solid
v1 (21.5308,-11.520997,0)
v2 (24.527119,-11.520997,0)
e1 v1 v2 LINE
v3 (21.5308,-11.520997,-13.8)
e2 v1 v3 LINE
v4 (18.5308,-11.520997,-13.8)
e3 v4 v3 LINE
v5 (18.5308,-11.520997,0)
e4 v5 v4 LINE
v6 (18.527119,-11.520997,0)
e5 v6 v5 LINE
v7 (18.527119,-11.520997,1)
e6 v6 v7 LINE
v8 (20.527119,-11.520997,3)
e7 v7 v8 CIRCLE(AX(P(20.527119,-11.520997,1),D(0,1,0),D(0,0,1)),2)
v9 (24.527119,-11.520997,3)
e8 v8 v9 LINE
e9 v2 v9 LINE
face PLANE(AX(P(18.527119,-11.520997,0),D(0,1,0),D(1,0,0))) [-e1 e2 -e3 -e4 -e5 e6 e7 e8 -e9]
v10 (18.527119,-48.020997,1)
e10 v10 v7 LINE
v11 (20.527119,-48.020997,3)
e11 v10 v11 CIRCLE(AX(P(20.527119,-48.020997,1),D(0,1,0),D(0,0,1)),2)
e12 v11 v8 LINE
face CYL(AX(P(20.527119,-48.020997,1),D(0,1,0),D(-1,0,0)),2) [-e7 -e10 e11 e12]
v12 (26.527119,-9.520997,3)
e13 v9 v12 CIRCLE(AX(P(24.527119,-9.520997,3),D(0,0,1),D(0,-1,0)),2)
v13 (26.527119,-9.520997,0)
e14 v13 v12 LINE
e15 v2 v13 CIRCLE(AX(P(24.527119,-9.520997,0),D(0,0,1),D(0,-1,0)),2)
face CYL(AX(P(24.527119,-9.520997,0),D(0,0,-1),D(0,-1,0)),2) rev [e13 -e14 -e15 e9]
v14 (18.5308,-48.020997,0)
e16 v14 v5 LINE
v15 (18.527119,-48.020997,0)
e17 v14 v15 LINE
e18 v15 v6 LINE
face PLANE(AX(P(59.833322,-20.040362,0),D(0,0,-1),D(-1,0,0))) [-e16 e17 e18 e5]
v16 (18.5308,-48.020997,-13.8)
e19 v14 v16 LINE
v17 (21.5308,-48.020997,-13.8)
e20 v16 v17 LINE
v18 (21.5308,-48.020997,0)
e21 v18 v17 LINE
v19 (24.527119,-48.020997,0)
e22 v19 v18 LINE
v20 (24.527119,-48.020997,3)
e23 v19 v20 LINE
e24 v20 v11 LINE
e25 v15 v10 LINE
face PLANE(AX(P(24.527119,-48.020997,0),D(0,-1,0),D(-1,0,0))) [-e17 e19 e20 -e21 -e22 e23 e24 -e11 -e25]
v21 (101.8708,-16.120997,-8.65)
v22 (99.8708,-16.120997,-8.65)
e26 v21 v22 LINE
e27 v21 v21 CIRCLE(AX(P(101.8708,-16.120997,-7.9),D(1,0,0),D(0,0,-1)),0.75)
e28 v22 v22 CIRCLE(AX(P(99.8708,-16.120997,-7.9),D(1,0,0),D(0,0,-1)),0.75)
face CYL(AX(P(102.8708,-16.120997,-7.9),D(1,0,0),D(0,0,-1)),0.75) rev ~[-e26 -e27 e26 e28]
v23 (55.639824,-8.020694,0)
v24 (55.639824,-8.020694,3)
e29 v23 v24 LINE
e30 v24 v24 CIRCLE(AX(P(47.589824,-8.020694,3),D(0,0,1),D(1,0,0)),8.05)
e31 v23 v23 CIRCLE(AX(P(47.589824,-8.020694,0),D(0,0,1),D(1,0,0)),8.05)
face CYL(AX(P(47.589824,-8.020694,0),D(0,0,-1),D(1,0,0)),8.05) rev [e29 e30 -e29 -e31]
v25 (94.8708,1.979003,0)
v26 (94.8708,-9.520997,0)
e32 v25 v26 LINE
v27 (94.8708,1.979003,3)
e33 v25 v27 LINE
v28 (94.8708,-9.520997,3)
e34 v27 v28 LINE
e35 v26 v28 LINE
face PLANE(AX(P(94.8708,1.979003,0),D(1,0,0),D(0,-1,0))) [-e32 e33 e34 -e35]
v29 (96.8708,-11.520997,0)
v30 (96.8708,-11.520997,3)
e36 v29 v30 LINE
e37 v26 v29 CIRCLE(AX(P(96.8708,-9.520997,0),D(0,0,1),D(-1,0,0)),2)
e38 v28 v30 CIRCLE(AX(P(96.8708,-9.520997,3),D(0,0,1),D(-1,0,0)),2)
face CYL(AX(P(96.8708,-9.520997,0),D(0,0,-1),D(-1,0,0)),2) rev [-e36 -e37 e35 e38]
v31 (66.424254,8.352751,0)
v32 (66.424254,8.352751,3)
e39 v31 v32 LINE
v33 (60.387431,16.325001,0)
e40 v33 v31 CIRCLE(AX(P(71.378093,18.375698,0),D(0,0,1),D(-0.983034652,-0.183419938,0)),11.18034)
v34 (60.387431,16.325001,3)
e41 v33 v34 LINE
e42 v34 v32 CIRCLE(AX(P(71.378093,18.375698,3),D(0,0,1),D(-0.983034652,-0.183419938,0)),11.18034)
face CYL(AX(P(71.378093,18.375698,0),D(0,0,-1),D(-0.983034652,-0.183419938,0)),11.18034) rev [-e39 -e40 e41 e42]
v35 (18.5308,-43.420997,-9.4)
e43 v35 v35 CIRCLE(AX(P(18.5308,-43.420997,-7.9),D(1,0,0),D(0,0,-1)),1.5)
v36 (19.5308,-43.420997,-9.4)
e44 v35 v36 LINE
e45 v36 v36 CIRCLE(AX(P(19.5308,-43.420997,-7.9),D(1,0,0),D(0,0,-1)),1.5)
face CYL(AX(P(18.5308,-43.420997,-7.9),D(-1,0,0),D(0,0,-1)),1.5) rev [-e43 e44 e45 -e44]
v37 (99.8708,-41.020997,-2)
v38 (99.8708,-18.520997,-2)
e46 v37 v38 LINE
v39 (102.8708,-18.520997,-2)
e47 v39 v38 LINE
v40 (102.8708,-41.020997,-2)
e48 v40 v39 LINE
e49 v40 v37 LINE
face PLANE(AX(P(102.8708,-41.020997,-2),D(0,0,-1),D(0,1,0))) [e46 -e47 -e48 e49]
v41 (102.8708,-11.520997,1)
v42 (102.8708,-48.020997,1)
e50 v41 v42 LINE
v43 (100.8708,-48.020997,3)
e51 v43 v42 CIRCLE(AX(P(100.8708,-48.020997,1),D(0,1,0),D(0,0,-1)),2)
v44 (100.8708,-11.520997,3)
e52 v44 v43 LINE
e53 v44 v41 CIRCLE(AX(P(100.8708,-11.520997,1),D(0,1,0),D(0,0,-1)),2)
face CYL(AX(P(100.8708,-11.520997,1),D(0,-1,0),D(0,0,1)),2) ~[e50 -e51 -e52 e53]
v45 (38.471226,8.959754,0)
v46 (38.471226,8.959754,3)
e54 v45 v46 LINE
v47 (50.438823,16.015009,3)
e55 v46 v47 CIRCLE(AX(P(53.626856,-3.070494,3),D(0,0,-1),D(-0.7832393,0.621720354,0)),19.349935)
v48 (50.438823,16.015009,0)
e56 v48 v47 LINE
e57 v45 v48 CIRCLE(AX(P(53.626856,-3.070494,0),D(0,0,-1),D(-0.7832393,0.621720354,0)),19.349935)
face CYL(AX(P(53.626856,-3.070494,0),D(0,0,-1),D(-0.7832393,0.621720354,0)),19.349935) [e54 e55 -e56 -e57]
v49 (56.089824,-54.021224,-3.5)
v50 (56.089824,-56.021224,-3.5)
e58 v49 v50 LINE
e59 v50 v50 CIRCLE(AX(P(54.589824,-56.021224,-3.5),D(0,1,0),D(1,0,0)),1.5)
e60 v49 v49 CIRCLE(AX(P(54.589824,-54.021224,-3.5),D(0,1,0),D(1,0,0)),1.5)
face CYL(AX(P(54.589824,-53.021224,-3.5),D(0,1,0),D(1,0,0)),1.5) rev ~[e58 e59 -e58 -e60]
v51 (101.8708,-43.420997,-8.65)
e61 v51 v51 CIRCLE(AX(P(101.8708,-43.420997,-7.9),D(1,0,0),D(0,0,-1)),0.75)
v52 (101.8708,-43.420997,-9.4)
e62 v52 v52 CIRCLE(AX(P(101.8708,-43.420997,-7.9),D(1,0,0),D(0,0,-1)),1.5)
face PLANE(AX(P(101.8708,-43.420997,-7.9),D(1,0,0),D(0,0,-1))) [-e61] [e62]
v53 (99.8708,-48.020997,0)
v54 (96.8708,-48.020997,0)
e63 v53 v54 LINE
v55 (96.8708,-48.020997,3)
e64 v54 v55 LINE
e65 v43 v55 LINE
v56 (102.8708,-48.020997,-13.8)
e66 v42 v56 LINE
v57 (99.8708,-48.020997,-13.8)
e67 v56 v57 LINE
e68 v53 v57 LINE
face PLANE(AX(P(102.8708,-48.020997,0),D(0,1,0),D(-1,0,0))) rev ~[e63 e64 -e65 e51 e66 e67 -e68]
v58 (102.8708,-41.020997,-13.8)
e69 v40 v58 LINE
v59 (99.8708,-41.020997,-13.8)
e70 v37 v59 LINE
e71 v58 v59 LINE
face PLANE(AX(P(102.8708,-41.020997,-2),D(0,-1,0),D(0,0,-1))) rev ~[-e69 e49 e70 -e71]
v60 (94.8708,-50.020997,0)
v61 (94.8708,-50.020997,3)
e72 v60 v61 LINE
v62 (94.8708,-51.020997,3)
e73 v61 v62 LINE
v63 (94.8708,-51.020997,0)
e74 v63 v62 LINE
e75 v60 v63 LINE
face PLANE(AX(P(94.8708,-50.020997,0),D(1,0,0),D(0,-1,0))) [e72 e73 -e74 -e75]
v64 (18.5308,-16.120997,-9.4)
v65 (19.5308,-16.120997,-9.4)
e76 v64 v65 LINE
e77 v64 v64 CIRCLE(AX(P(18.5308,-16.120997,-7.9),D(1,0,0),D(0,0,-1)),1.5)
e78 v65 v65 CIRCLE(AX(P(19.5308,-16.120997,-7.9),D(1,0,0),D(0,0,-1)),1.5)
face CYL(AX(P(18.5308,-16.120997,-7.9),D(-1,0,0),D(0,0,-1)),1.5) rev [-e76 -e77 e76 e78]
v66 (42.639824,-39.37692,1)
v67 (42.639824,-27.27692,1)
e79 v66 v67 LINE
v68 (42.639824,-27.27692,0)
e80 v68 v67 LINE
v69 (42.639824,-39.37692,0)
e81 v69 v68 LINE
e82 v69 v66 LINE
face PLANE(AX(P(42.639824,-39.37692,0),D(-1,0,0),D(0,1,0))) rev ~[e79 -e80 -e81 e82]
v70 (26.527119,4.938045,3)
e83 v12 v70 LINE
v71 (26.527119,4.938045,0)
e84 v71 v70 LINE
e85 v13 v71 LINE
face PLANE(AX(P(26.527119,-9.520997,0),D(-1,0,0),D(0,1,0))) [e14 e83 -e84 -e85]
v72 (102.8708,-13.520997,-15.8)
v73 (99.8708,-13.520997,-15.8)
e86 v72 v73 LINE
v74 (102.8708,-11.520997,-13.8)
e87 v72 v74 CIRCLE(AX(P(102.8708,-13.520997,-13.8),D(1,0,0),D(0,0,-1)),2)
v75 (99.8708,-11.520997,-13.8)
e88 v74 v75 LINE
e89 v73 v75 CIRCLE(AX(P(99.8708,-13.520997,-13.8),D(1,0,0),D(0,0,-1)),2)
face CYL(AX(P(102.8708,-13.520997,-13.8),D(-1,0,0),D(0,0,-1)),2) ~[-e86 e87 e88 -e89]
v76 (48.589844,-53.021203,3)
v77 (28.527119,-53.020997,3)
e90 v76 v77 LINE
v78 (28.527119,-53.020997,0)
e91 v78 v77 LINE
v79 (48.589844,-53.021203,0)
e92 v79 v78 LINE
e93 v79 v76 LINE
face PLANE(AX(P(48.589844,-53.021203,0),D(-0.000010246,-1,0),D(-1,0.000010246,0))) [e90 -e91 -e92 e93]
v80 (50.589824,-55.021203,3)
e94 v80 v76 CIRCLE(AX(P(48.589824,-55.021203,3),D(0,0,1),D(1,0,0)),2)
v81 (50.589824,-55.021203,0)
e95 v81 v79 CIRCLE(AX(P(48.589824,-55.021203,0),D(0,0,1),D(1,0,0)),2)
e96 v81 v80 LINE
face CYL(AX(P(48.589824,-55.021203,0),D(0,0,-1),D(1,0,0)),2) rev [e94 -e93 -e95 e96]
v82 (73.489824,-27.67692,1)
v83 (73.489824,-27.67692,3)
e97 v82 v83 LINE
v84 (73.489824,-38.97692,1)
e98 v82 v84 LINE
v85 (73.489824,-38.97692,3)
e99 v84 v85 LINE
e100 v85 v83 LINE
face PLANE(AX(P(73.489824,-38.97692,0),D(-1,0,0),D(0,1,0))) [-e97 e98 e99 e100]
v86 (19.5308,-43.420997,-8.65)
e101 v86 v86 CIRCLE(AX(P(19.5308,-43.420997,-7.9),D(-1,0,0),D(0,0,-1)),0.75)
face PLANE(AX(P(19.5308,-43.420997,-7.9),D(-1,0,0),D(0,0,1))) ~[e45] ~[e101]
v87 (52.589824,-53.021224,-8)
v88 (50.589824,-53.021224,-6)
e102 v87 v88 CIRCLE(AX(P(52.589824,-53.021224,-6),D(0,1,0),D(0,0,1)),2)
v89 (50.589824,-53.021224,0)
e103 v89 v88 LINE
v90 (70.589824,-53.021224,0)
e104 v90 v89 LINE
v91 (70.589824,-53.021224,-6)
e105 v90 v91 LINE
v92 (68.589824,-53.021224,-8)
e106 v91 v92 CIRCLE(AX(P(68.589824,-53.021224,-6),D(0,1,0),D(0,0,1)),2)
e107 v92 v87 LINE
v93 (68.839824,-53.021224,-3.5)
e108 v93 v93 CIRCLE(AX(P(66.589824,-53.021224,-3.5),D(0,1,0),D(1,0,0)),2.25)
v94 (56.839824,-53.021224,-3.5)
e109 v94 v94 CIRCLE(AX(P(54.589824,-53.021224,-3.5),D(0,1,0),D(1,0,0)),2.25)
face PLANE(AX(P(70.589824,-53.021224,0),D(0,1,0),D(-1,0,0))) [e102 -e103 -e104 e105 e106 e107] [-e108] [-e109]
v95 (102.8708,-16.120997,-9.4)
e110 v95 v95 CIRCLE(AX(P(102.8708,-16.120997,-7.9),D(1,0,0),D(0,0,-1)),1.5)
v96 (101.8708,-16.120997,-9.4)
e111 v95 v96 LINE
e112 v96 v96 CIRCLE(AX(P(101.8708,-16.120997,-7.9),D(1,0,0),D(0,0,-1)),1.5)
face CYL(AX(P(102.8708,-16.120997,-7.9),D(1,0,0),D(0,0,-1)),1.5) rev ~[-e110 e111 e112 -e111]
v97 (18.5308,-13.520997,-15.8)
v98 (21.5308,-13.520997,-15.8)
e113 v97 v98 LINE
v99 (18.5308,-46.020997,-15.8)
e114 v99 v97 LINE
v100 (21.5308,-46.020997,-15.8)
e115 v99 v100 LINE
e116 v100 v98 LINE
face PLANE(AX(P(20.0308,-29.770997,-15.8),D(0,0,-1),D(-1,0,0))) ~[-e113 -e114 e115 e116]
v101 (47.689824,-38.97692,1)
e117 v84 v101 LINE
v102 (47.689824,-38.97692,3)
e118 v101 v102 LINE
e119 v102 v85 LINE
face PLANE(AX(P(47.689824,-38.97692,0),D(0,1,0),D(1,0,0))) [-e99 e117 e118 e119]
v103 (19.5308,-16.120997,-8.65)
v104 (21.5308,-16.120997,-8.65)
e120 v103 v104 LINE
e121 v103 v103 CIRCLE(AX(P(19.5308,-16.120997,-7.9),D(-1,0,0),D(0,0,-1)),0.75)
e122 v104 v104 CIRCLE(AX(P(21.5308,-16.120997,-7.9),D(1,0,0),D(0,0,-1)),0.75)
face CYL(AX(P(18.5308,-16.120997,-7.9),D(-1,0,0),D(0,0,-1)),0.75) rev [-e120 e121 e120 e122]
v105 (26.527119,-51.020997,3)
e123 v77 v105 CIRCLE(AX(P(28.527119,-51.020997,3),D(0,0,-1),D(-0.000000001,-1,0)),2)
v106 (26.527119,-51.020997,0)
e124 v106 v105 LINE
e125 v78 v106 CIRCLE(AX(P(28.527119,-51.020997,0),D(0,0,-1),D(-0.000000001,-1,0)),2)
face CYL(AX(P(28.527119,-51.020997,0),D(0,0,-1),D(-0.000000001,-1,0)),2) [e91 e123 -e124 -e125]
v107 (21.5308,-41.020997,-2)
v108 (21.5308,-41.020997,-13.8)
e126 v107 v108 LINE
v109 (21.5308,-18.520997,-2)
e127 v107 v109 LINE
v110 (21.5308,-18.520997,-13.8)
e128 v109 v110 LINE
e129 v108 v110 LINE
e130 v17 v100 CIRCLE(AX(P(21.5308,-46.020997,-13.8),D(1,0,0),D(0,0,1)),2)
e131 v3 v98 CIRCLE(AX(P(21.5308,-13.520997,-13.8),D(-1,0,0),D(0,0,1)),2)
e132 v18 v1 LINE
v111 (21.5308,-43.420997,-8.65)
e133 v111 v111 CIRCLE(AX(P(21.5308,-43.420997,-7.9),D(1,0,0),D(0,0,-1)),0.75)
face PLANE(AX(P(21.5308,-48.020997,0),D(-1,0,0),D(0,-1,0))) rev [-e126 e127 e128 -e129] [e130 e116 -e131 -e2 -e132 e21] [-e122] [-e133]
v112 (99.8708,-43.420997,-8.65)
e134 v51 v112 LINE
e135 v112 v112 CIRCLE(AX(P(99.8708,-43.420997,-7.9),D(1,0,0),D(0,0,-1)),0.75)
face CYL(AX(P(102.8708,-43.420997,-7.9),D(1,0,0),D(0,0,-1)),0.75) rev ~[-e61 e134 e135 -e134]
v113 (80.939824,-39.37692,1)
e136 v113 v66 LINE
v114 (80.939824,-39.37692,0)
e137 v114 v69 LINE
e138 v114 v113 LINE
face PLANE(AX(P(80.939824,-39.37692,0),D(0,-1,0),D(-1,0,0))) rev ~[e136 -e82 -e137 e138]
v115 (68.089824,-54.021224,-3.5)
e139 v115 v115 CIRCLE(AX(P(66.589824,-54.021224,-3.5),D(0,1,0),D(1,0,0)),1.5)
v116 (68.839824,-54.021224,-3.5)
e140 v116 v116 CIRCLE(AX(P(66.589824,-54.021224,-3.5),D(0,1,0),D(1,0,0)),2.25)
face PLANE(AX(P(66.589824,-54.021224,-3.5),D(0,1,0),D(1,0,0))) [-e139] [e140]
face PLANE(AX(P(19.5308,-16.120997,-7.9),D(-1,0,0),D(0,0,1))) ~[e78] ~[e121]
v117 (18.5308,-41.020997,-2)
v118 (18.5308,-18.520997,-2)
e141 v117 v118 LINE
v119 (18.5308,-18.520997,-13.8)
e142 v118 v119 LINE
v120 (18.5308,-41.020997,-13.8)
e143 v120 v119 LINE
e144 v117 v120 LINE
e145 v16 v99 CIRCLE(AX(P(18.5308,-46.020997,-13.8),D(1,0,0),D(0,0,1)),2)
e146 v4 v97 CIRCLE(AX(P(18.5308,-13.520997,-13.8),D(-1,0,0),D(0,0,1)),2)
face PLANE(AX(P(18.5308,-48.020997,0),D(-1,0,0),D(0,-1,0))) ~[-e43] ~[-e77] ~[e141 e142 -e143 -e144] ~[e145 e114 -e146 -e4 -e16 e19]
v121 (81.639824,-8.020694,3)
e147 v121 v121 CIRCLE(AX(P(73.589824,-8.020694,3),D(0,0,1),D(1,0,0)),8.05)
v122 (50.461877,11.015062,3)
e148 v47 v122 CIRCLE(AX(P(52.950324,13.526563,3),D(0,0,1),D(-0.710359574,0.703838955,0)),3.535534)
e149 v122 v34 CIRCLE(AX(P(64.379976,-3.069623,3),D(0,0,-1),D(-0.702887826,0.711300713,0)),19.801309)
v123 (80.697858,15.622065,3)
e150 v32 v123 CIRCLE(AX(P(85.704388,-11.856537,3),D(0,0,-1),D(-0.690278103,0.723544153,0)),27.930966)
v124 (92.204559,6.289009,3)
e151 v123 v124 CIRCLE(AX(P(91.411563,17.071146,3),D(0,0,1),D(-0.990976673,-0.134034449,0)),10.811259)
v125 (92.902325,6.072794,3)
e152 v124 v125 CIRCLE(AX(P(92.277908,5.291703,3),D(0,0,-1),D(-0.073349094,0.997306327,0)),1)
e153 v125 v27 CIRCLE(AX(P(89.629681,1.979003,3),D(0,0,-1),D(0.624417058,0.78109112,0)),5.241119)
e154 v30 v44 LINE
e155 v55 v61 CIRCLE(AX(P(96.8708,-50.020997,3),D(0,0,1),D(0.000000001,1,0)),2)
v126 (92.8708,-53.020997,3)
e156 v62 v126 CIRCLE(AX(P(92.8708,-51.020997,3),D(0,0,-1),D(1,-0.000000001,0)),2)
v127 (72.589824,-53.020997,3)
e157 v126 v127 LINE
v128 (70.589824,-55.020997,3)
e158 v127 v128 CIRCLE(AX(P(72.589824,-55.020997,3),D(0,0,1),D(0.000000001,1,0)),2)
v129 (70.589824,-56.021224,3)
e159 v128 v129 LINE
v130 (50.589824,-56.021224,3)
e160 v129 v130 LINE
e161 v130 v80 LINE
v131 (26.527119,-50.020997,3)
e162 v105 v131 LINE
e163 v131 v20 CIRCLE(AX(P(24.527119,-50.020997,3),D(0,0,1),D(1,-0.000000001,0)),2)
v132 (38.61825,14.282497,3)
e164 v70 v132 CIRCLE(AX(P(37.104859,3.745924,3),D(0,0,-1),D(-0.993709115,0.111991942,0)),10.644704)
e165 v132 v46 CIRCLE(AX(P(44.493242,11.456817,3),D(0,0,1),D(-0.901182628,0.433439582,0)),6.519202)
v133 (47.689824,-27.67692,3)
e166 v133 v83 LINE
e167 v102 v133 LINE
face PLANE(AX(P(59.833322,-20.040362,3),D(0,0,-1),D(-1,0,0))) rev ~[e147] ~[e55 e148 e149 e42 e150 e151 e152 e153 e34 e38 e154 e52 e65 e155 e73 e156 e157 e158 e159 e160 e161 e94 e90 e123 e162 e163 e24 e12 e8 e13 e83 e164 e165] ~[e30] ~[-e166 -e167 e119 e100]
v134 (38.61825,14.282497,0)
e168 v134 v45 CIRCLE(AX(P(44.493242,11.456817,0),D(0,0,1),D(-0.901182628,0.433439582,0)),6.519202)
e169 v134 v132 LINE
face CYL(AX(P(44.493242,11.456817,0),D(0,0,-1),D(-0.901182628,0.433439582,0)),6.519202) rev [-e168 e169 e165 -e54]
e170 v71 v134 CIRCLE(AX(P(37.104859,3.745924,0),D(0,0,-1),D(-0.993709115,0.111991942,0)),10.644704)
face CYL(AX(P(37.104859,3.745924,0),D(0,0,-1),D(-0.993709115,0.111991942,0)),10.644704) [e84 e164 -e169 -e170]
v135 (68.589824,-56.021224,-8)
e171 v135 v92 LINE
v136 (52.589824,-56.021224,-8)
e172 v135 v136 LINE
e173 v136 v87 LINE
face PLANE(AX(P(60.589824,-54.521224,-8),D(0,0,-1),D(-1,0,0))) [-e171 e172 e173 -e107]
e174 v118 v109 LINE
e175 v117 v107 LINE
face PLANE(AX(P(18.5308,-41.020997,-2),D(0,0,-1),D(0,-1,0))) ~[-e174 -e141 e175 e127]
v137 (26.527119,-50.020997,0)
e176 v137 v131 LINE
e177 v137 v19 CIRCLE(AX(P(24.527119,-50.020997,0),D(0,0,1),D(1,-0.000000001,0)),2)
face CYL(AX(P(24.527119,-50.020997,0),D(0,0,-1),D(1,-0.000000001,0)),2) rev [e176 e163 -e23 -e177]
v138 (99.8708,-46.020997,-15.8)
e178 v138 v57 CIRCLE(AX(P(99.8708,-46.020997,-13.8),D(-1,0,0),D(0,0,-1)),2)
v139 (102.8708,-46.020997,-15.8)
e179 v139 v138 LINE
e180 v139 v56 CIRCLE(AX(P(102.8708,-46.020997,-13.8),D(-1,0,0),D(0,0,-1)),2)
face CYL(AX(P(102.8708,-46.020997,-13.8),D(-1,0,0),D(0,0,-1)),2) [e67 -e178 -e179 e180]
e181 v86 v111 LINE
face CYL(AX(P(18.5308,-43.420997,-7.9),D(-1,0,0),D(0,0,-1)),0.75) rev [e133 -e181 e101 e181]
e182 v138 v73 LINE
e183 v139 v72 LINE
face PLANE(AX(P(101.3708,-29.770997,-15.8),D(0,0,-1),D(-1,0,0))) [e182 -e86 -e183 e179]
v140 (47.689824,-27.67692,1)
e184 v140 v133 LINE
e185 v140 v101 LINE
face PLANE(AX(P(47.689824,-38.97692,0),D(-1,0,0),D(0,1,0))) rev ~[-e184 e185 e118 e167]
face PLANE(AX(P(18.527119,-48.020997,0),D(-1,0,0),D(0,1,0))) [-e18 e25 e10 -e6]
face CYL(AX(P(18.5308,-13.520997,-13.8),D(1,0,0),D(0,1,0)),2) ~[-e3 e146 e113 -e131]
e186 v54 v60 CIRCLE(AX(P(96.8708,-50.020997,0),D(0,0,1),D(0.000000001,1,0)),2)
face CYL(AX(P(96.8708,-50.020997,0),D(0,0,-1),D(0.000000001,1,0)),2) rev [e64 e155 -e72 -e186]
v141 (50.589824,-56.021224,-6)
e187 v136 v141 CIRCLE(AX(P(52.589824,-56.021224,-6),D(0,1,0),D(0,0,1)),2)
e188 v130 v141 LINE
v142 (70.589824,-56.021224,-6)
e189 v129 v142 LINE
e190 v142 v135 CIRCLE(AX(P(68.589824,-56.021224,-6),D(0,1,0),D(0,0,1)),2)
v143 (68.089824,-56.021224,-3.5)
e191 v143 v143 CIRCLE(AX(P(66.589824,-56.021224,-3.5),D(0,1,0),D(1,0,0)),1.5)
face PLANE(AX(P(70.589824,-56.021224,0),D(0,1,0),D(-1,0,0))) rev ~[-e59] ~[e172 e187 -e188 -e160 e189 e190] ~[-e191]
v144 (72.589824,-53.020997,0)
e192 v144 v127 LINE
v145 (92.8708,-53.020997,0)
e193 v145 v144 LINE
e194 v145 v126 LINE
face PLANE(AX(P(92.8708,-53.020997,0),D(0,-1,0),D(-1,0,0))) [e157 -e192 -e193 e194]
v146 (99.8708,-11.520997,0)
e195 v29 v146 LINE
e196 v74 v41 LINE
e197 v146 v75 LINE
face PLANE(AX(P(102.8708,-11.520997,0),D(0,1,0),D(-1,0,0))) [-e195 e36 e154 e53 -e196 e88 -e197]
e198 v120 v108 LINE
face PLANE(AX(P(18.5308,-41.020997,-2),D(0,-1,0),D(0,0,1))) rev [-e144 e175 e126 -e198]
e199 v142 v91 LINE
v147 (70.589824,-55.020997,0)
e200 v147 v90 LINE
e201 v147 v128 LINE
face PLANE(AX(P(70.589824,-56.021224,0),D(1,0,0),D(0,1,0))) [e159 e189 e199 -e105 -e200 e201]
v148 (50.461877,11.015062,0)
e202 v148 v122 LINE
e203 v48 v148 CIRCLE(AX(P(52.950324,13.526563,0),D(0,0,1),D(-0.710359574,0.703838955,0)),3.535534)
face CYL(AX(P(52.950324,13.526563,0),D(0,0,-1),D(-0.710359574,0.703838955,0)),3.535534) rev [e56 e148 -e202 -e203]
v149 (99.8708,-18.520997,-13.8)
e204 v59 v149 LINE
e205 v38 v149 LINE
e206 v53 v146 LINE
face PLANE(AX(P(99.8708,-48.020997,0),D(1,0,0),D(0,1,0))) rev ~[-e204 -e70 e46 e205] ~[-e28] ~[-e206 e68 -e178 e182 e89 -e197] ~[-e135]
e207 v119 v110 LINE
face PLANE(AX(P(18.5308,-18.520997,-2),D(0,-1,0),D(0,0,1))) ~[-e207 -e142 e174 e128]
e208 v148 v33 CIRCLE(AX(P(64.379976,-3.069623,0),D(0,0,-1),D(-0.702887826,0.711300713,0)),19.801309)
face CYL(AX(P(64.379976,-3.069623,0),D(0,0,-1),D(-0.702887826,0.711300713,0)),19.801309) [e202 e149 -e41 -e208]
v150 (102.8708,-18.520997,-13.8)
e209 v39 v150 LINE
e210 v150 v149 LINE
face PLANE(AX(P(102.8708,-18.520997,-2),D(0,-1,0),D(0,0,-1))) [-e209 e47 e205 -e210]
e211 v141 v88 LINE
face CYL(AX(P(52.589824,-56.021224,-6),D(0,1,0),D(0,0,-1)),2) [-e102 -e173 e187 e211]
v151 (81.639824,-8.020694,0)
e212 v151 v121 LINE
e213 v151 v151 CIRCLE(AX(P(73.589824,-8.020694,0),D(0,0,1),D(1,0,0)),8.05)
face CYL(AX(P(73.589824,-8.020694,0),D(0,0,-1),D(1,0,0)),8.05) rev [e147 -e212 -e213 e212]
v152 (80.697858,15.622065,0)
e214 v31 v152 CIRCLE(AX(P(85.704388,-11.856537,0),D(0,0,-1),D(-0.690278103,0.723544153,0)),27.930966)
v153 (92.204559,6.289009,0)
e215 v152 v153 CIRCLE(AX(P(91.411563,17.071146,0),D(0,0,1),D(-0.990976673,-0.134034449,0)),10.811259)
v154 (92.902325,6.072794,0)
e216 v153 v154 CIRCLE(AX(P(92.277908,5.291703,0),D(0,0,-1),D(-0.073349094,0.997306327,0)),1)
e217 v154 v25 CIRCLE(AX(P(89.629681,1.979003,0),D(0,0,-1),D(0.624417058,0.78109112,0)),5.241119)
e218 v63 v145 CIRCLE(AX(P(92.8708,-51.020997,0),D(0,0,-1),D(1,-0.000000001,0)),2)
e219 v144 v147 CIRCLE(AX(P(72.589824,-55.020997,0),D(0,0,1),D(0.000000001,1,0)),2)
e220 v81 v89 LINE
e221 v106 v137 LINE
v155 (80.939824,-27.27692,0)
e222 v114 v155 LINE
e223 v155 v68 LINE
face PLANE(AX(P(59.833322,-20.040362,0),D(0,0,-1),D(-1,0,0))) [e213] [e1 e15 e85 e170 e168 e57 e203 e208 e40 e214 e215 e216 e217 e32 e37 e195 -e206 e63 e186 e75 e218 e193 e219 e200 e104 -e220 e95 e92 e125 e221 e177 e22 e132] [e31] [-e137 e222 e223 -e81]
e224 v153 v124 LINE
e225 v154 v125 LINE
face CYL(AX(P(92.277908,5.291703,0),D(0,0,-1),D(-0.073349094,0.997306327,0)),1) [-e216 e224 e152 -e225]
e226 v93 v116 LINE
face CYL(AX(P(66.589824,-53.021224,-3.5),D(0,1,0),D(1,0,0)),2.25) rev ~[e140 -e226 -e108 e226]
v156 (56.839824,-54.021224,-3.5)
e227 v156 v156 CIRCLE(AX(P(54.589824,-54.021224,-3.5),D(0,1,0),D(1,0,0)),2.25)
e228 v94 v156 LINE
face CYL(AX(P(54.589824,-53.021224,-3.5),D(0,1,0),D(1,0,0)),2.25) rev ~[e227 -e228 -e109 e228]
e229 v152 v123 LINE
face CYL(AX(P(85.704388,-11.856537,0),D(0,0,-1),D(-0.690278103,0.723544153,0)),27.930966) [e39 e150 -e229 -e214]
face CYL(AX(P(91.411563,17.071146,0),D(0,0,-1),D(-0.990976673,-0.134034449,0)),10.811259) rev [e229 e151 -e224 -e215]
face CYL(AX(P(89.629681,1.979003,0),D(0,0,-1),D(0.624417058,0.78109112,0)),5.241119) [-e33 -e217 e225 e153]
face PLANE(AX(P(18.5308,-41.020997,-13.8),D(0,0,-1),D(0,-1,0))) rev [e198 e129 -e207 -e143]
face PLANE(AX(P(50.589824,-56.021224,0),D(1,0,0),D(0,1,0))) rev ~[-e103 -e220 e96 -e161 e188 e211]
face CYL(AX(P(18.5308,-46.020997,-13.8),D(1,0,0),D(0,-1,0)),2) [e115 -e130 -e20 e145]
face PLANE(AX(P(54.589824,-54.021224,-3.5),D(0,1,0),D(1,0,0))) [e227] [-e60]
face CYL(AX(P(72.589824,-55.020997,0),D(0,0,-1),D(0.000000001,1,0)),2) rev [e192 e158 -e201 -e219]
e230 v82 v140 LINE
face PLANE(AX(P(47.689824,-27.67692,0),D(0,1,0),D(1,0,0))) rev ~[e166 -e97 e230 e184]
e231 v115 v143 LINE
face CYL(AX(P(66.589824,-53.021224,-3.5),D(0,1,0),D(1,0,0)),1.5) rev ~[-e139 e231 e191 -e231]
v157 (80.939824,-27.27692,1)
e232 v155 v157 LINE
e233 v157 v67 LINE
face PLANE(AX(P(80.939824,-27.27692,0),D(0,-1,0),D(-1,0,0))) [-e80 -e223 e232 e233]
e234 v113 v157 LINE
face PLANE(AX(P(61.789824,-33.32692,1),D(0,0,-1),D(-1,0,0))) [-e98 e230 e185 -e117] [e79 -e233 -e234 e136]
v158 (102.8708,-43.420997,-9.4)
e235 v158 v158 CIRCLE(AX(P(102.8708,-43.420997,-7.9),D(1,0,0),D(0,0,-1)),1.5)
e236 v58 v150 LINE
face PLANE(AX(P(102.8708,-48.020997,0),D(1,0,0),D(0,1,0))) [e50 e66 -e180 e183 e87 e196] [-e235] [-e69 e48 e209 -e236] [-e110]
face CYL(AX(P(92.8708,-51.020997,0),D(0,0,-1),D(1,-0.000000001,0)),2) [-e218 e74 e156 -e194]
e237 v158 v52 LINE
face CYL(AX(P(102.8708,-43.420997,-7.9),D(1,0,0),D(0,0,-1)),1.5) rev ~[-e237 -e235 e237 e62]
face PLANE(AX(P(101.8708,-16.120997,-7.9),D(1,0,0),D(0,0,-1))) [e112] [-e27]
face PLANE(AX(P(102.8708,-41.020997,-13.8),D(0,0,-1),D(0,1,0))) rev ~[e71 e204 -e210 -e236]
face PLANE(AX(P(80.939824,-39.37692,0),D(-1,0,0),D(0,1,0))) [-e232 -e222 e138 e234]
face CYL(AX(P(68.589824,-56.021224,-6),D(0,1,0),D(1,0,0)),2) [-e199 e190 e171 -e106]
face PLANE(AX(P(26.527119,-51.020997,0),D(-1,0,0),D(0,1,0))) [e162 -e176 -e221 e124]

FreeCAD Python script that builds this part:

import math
import FreeCAD as App
import Part
import Sketcher

V = App.Vector


def edges_at(feature, points):
    """Names of the edges that pass closest to the given points."""
    edges = feature.Shape.Edges
    near = lambda p: min(range(len(edges)), key=lambda i: edges[i].distToShape(Part.Vertex(*p))[0])
    return sorted({f"Edge{near(p) + 1}" for p in points})


def add_polygon(sketch, points):
    """Adds a closed chain of lines whose ends are joined by coincident constraints."""
    first, n = sketch.GeometryCount, len(points)
    for a, b in zip(points, points[1:] + points[:1]):
        sketch.addGeometry(Part.LineSegment(App.Vector(*a, 0), App.Vector(*b, 0)), False)
    for i in range(n):
        sketch.addConstraint(Sketcher.Constraint("Coincident", first + i, 2, first + (i + 1) % n, 1))

doc = App.newDocument("Part")
body = doc.addObject("PartDesign::Body", "Body")

sketch1 = body.newObject("Sketcher::SketchObject", "Sketch")
sketch1.AttachmentSupport = (doc.getObject("XY_Plane"), [""])
sketch1.MapMode = "FlatFace"
sketch1.addGeometry(Part.LineSegment(V(102.8708, -48.020997, 0), V(102.8708, -11.520997, 0)), False)
sketch1.addGeometry(Part.LineSegment(V(102.8708, -11.520997, 0), V(96.8708, -11.520997, 0)), False)
sketch1.addGeometry(Part.ArcOfCircle(Part.Circle(V(96.8708, -9.520997, 0), V(0, 0, 1), 2), math.radians(180), math.radians(270)), False)
sketch1.addGeometry(Part.LineSegment(V(94.8708, -9.520997, 0), V(94.8708, 1.979003, 0)), False)
sketch1.addGeometry(Part.ArcOfCircle(Part.Circle(V(89.629681, 1.979003, 0), V(0, 0, 1), 5.241119), math.radians(0), math.radians(51.360586)), False)
sketch1.addGeometry(Part.ArcOfCircle(Part.Circle(V(92.277908, 5.291703, 0), V(0, 0, 1), 1), math.radians(51.360586), math.radians(94.206371)), False)
sketch1.addGeometry(Part.ArcOfCircle(Part.Circle(V(91.411563, 17.071146, 0), V(0, 0, 1), 10.811259), math.radians(-172.29721), math.radians(-85.793629)), False)
sketch1.addGeometry(Part.ArcOfCircle(Part.Circle(V(85.704388, -11.856537, 0), V(0, 0, 1), 27.930966), math.radians(100.325879), math.radians(133.652127)), False)
sketch1.addGeometry(Part.ArcOfCircle(Part.Circle(V(71.378093, 18.375698, 0), V(0, 0, 1), 11.18034), math.radians(-169.430975), math.radians(-116.300872)), False)
sketch1.addGeometry(Part.ArcOfCircle(Part.Circle(V(64.379976, -3.069623, 0), V(0, 0, 1), 19.801309), math.radians(101.632314), math.radians(134.659156)), False)
sketch1.addGeometry(Part.ArcOfCircle(Part.Circle(V(52.950324, 13.526563, 0), V(0, 0, 1), 3.535534), math.radians(135.264179), math.radians(225.264179)), False)
sketch1.addGeometry(Part.ArcOfCircle(Part.Circle(V(53.626856, -3.070494, 0), V(0, 0, 1), 19.349935), math.radians(99.483105), math.radians(141.558127)), False)
sketch1.addGeometry(Part.ArcOfCircle(Part.Circle(V(44.493242, 11.456817, 0), V(0, 0, 1), 6.519202), math.radians(154.313956), math.radians(202.521611)), False)
sketch1.addGeometry(Part.ArcOfCircle(Part.Circle(V(37.104859, 3.745924, 0), V(0, 0, 1), 10.644704), math.radians(81.826382), math.radians(173.569845)), False)
sketch1.addGeometry(Part.LineSegment(V(26.527119, 4.938045, 0), V(26.527119, -9.520997, 0)), False)
sketch1.addGeometry(Part.ArcOfCircle(Part.Circle(V(24.527119, -9.520997, 0), V(0, 0, 1), 2), math.radians(-90), math.radians(0)), False)
sketch1.addGeometry(Part.LineSegment(V(24.527119, -11.520997, 0), V(18.527119, -11.520997, 0)), False)
sketch1.addGeometry(Part.LineSegment(V(18.527119, -11.520997, 0), V(18.527119, -48.020997, 0)), False)
sketch1.addGeometry(Part.LineSegment(V(18.527119, -48.020997, 0), V(24.527119, -48.020997, 0)), False)
sketch1.addGeometry(Part.ArcOfCircle(Part.Circle(V(24.527119, -50.020997, 0), V(0, 0, 1), 2), math.radians(0), math.radians(90)), False)
sketch1.addGeometry(Part.LineSegment(V(26.527119, -50.020997, 0), V(26.527119, -51.020997, 0)), False)
sketch1.addGeometry(Part.ArcOfCircle(Part.Circle(V(28.527119, -51.020997, 0), V(0, 0, 1), 2), math.radians(-180), math.radians(-90)), False)
sketch1.addGeometry(Part.LineSegment(V(28.527119, -53.020997, 0), V(48.589844, -53.021203, 0)), False)
sketch1.addGeometry(Part.ArcOfCircle(Part.Circle(V(48.589824, -55.021203, 0), V(0, 0, 1), 2), math.radians(0), math.radians(89.999413)), False)
sketch1.addGeometry(Part.LineSegment(V(50.589824, -55.021203, 0), V(50.589824, -56.021224, 0)), False)
sketch1.addGeometry(Part.LineSegment(V(50.589824, -56.021224, 0), V(70.589824, -56.021224, 0)), False)
sketch1.addGeometry(Part.LineSegment(V(70.589824, -56.021224, 0), V(70.589824, -55.020997, 0)), False)
sketch1.addGeometry(Part.ArcOfCircle(Part.Circle(V(72.589824, -55.020997, 0), V(0, 0, 1), 2), math.radians(90), math.radians(180)), False)
sketch1.addGeometry(Part.LineSegment(V(72.589824, -53.020997, 0), V(92.8708, -53.020997, 0)), False)
sketch1.addGeometry(Part.ArcOfCircle(Part.Circle(V(92.8708, -51.020997, 0), V(0, 0, 1), 2), math.radians(-90), math.radians(0)), False)
sketch1.addGeometry(Part.LineSegment(V(94.8708, -51.020997, 0), V(94.8708, -50.020997, 0)), False)
sketch1.addGeometry(Part.ArcOfCircle(Part.Circle(V(96.8708, -50.020997, 0), V(0, 0, 1), 2), math.radians(90), math.radians(180)), False)
sketch1.addGeometry(Part.LineSegment(V(96.8708, -48.020997, 0), V(102.8708, -48.020997, 0)), False)
add_polygon(sketch1, [(47.689824, -38.97692), (47.689824, -27.67692), (73.489824, -27.67692), (73.489824, -38.97692)])
sketch1.addGeometry(Part.Circle(V(73.589824, -8.020694, 0), V(0, 0, 1), 8.05), False)
sketch1.addGeometry(Part.Circle(V(47.589824, -8.020694, 0), V(0, 0, 1), 8.05), False)
sketch1.addConstraint([
    Sketcher.Constraint("Coincident", 0, 2, 1, 1),
    Sketcher.Constraint("Coincident", 1, 2, 2, 2),
    Sketcher.Constraint("Coincident", 2, 1, 3, 1),
    Sketcher.Constraint("Coincident", 3, 2, 4, 1),
    Sketcher.Constraint("Coincident", 4, 2, 5, 1),
    Sketcher.Constraint("Coincident", 5, 2, 6, 2),
    Sketcher.Constraint("Coincident", 6, 1, 7, 1),
    Sketcher.Constraint("Coincident", 7, 2, 8, 2),
    Sketcher.Constraint("Coincident", 8, 1, 9, 1),
    Sketcher.Constraint("Coincident", 9, 2, 10, 2),
    Sketcher.Constraint("Coincident", 10, 1, 11, 1),
    Sketcher.Constraint("Coincident", 11, 2, 12, 2),
    Sketcher.Constraint("Coincident", 12, 1, 13, 1),
    Sketcher.Constraint("Coincident", 13, 2, 14, 1),
    Sketcher.Constraint("Coincident", 14, 2, 15, 2),
    Sketcher.Constraint("Coincident", 15, 1, 16, 1),
    Sketcher.Constraint("Coincident", 16, 2, 17, 1),
    Sketcher.Constraint("Coincident", 17, 2, 18, 1),
    Sketcher.Constraint("Coincident", 18, 2, 19, 2),
    Sketcher.Constraint("Coincident", 19, 1, 20, 1),
    Sketcher.Constraint("Coincident", 20, 2, 21, 1),
    Sketcher.Constraint("Coincident", 21, 2, 22, 1),
    Sketcher.Constraint("Coincident", 22, 2, 23, 2),
    Sketcher.Constraint("Coincident", 23, 1, 24, 1),
    Sketcher.Constraint("Coincident", 24, 2, 25, 1),
    Sketcher.Constraint("Coincident", 25, 2, 26, 1),
    Sketcher.Constraint("Coincident", 26, 2, 27, 2),
    Sketcher.Constraint("Coincident", 27, 1, 28, 1),
    Sketcher.Constraint("Coincident", 28, 2, 29, 1),
    Sketcher.Constraint("Coincident", 29, 2, 30, 1),
    Sketcher.Constraint("Coincident", 30, 2, 31, 2),
    Sketcher.Constraint("Coincident", 31, 1, 32, 1),
    Sketcher.Constraint("Coincident", 32, 2, 0, 1),
    Sketcher.Constraint("Vertical", 0),
    Sketcher.Constraint("Horizontal", 1),
    Sketcher.Constraint("Vertical", 3),
    Sketcher.Constraint("Vertical", 14),
    Sketcher.Constraint("Horizontal", 16),
    Sketcher.Constraint("Vertical", 17),
    Sketcher.Constraint("Horizontal", 18),
    Sketcher.Constraint("Vertical", 20),
    Sketcher.Constraint("Vertical", 24),
    Sketcher.Constraint("Horizontal", 25),
    Sketcher.Constraint("Vertical", 26),
    Sketcher.Constraint("Horizontal", 28),
    Sketcher.Constraint("Vertical", 30),
    Sketcher.Constraint("Horizontal", 32),
    Sketcher.Constraint("Vertical", 33),
    Sketcher.Constraint("Horizontal", 34),
    Sketcher.Constraint("Vertical", 35),
    Sketcher.Constraint("Horizontal", 36),
    Sketcher.Constraint("Radius", 2, 2.0),
    Sketcher.Constraint("Radius", 5, 1.0),
    Sketcher.Constraint("Radius", 15, 2.0),
    Sketcher.Constraint("Radius", 19, 2.0),
    Sketcher.Constraint("Radius", 21, 2.0),
    Sketcher.Constraint("Radius", 23, 2.0),
    Sketcher.Constraint("Radius", 27, 2.0),
    Sketcher.Constraint("Radius", 29, 2.0),
    Sketcher.Constraint("Radius", 31, 2.0),
    Sketcher.Constraint("Diameter", 37, 16.1),
    Sketcher.Constraint("Diameter", 38, 16.1),
    Sketcher.Constraint("DistanceX", 1, 2, 1, 1, 6.0),
    Sketcher.Constraint("DistanceX", 16, 2, 16, 1, 6.0),
    Sketcher.Constraint("DistanceX", 18, 1, 18, 2, 6.0),
    Sketcher.Constraint("DistanceX", 25, 1, 25, 2, 20.0),
    Sketcher.Constraint("DistanceX", 32, 1, 32, 2, 6.0),
    Sketcher.Constraint("DistanceY", 20, 2, 20, 1, 1.0),
    Sketcher.Constraint("DistanceY", 30, 1, 30, 2, 1.0),
    Sketcher.Constraint("DistanceX", 34, 1, 34, 2, 25.8),
    Sketcher.Constraint("DistanceY", 0, 1, 0, 2, 36.5),
    Sketcher.Constraint("DistanceY", 3, 1, 3, 2, 11.5),
    Sketcher.Constraint("DistanceY", 17, 2, 17, 1, 36.5),
    Sketcher.Constraint("DistanceY", 33, 1, 33, 2, 11.3),
    Sketcher.Constraint("DistanceY", 21, 3, 19, 3, 1.0),
    Sketcher.Constraint("DistanceX", 15, 3, 21, 3, 4.0),
    Sketcher.Constraint("DistanceY", 27, 3, 21, 3, 4.0),
    Sketcher.Constraint("DistanceX", 29, 3, 2, 3, 4.0),
    Sketcher.Constraint("DistanceY", 29, 3, 4, 3, 53.0),
    Sketcher.Constraint("DistanceY", 29, 3, 31, 3, 1.0),
    Sketcher.Constraint("DistanceX", 2, 3, 0, 2, 6.0),
    Sketcher.Constraint("DistanceY", 1, 2, 2, 1, 2.0),
    Sketcher.Constraint("DistanceX", 15, 1, 14, 2, 2.0),
    Sketcher.Constraint("DistanceY", 15, 1, 14, 2, 2.0),
    Sketcher.Constraint("DistanceY", 21, 3, 19, 1, 1.0),
    Sketcher.Constraint("DistanceX", 20, 2, 21, 2, 2.0),
    Sketcher.Constraint("DistanceY", 23, 1, 22, 2, 2.0),
    Sketcher.Constraint("DistanceX", 26, 2, 27, 1, 2.0),
    Sketcher.Constraint("DistanceY", 26, 2, 27, 1, 2.0),
    Sketcher.Constraint("DistanceX", 28, 2, 31, 3, 4.0),
    Sketcher.Constraint("DistanceY", 29, 2, 31, 3, 1.0),
    Sketcher.Constraint("DistanceX", 38, 3, 33, 2, 0.1),
    Sketcher.Constraint("DistanceX", 33, 2, 23, 3, 0.9),
    Sketcher.Constraint("DistanceX", 34, 2, 37, 3, 0.1),
    Sketcher.Constraint("Radius", 4, 5.241119),
    Sketcher.Constraint("Radius", 6, 10.811259),
    Sketcher.Constraint("Radius", 8, 11.18034),
    Sketcher.Constraint("Radius", 9, 19.801309),
    Sketcher.Constraint("DistanceY", -1, 1, 8, 1, 16.325001),
    Sketcher.Constraint("Radius", 7, 27.930966),
    Sketcher.Constraint("Radius", 10, 3.535534),
    Sketcher.Constraint("Radius", 11, 19.349935),
    Sketcher.Constraint("Radius", 12, 6.519202),
    Sketcher.Constraint("Radius", 13, 10.644704),
    Sketcher.Constraint("DistanceY", 24, 2, 24, 1, 1.00002),
    Sketcher.Constraint("DistanceX", -1, 1, 2, 3, 96.8708),
    Sketcher.Constraint("DistanceY", -1, 1, 8, 3, 18.375698),
    Sketcher.Constraint("DistanceY", 4, 3, 5, 3, 3.3127),
    Sketcher.Constraint("DistanceY", 37, 3, 11, 3, 4.9502),
    Sketcher.Constraint("DistanceY", 38, 3, 11, 3, 4.9502),
    Sketcher.Constraint("DistanceX", 38, 3, 10, 3, 5.3605),
    Sketcher.Constraint("DistanceX", 6, 1, 5, 2, 11.506701),
    Sketcher.Constraint("DistanceY", 9, 2, 10, 3, 2.5115),
    Sketcher.Constraint("DistanceX", 10, 1, 10, 3, 2.5115),
    Sketcher.Constraint("DistanceX", 28, 1, 28, 2, 20.280976),
    Sketcher.Constraint("DistanceY", 14, 2, 14, 1, 14.459042),
    Sketcher.Constraint("DistanceY", 26, 1, 26, 2, 1.000226),
    Sketcher.Constraint("DistanceX", -1, 1, 7, 3, 85.704388),
    Sketcher.Constraint("DistanceX", -1, 1, 13, 3, 37.104859),
    Sketcher.Constraint("DistanceX", -1, 1, 15, 3, 24.527119),
    Sketcher.Constraint("DistanceX", -1, 1, 5, 2, 92.204559),
    Sketcher.Constraint("DistanceY", -1, 1, 5, 2, 6.289009),
    Sketcher.Constraint("DistanceY", -1, 1, 7, 2, 8.352751),
    Sketcher.Constraint("DistanceX", -1, 1, 8, 1, 60.387431),
    Sketcher.Constraint("DistanceY", -1, 1, 10, 1, 16.015009),
    Sketcher.Constraint("DistanceX", -1, 1, 12, 1, 38.61825),
    Sketcher.Constraint("DistanceY", 33, 2, -1, 1, 27.67692),
    Sketcher.Constraint("DistanceX", 11, 3, 9, 3, 10.75312),
    Sketcher.Constraint("DistanceX", 12, 3, 10, 3, 8.457081),
    Sketcher.Constraint("DistanceY", 5, 3, 4, 2, 0.781091),
    Sketcher.Constraint("DistanceX", 22, 2, 23, 1, 1.99998),
])
pad1 = body.newObject("PartDesign::Pad", "Pad")
pad1.Profile = sketch1
pad1.Length = 3

sketch2 = body.newObject("Sketcher::SketchObject", "Sketch001")
sketch2.AttachmentSupport = (doc.getObject("XY_Plane"), [""])
sketch2.MapMode = "FlatFace"
add_polygon(sketch2, [(81, -27), (81, -39), (43, -39), (43, -27)])
sketch2.addConstraint([
    Sketcher.Constraint("Vertical", 0),
    Sketcher.Constraint("Horizontal", 1),
    Sketcher.Constraint("Vertical", 2),
    Sketcher.Constraint("Horizontal", 3),
    Sketcher.Constraint("DistanceX", 1, 2, 1, 1, 38.3),
    Sketcher.Constraint("DistanceY", 0, 2, 0, 1, 12.1),
    Sketcher.Constraint("DistanceY", 0, 2, -1, 1, 39.37692),
    Sketcher.Constraint("DistanceX", -1, 1, 0, 2, 80.939824),
])
pocket1 = body.newObject("PartDesign::Pocket", "Pocket")
pocket1.Profile = sketch2
pocket1.Length = 1
pocket1.Reversed = True

sketch3 = body.newObject("Sketcher::SketchObject", "Sketch002")
sketch3.AttachmentSupport = (doc.getObject("XY_Plane"), [""])
sketch3.MapMode = "FlatFace"
add_polygon(sketch3, [(102.9, -11.5), (102.9, -48), (99.9, -48), (99.9, -11.5)])
sketch3.addConstraint([
    Sketcher.Constraint("Vertical", 0),
    Sketcher.Constraint("Horizontal", 1),
    Sketcher.Constraint("Vertical", 2),
    Sketcher.Constraint("Horizontal", 3),
    Sketcher.Constraint("DistanceX", 1, 2, 1, 1, 3.0),
    Sketcher.Constraint("DistanceY", 0, 2, 0, 1, 36.5),
    Sketcher.Constraint("DistanceX", -1, 1, 0, 2, 102.8708),
    Sketcher.Constraint("DistanceY", 0, 2, -1, 1, 48.020997),
])
pad2 = body.newObject("PartDesign::Pad", "Pad001")
pad2.Profile = sketch3
pad2.Length = 15.8
pad2.Reversed = True

sketch4 = body.newObject("Sketcher::SketchObject", "Sketch003")
sketch4.AttachmentSupport = (doc.getObject("YZ_Plane"), [""])
sketch4.MapMode = "FlatFace"
sketch4.AttachmentOffset = App.Placement(V(0, 0, 102.8708), App.Rotation())
sketch4.addGeometry(Part.Circle(V(-43.4, -7.9, 0), V(0, 0, 1), 0.8), False)
sketch4.addGeometry(Part.Circle(V(-16.1, -7.9, 0), V(0, 0, 1), 0.8), False)
add_polygon(sketch4, [(-18.5, -2), (-41, -2), (-41, -13.8), (-18.5, -13.8)])
sketch4.addConstraint([
    Sketcher.Constraint("Horizontal", 2),
    Sketcher.Constraint("Vertical", 3),
    Sketcher.Constraint("Horizontal", 4),
    Sketcher.Constraint("Vertical", 5),
    Sketcher.Constraint("Equal", 0, 1),
    Sketcher.Constraint("Horizontal", 0, 3, 1, 3),
    Sketcher.Constraint("Diameter", 0, 1.5),
    Sketcher.Constraint("DistanceX", 2, 2, 2, 1, 22.5),
    Sketcher.Constraint("DistanceY", 3, 2, 3, 1, 11.8),
    Sketcher.Constraint("DistanceY", 2, 2, -1, 1, 2.0),
    Sketcher.Constraint("DistanceY", 0, 3, -1, 1, 7.9),
    Sketcher.Constraint("DistanceX", 0, 3, 1, 3, 27.3),
    Sketcher.Constraint("DistanceX", 0, 3, 2, 2, 2.4),
    Sketcher.Constraint("DistanceX", 0, 3, -1, 1, 43.420997),
])
pocket2 = body.newObject("PartDesign::Pocket", "Pocket001")
pocket2.Profile = sketch4
pocket2.Length = 3

sketch5 = body.newObject("Sketcher::SketchObject", "Sketch004")
sketch5.AttachmentSupport = (doc.getObject("YZ_Plane"), [""])
sketch5.MapMode = "FlatFace"
sketch5.AttachmentOffset = App.Placement(V(0, 0, 102.8708), App.Rotation())
sketch5.addGeometry([
    Part.Circle(V(-16.1, -7.9, 0), V(0, 0, 1), 1.5),
    Part.Circle(V(-43.4, -7.9, 0), V(0, 0, 1), 1.5),
], False)
sketch5.addConstraint([
    Sketcher.Constraint("Equal", 0, 1),
    Sketcher.Constraint("Horizontal", 0, 3, 1, 3),
    Sketcher.Constraint("Diameter", 0, 3.0),
    Sketcher.Constraint("DistanceY", 0, 3, -1, 1, 7.9),
    Sketcher.Constraint("DistanceX", 1, 3, 0, 3, 27.3),
    Sketcher.Constraint("DistanceX", 0, 3, -1, 1, 16.120997),
])
pocket3 = body.newObject("PartDesign::Pocket", "Pocket002")
pocket3.Profile = sketch5
pocket3.Length = 1
doc.recompute()

fillet = body.newObject("PartDesign::Fillet", "Fillet")
fillet.Base = (pocket3, edges_at(pocket3, [(101.371, -48.021, -15.8), (101.371, -11.521, -15.8)]))
fillet.Radius = 2
doc.recompute()

datumplane = body.newObject("PartDesign::Plane", "DatumPlane")
datumplane.AttachmentSupport = (doc.getObject("YZ_Plane"), [""])
datumplane.MapMode = "FlatFace"
datumplane.AttachmentOffset = App.Placement(V(0, 0, 60.7008), App.Rotation())
mirrored = body.newObject("PartDesign::Mirrored", "Mirrored")
mirrored.Originals = [pad2, pocket2, pocket3]
mirrored.MirrorPlane = (datumplane, [""])
body.Tip = mirrored
doc.recompute()

fillet2 = body.newObject("PartDesign::Fillet", "Fillet001")
fillet2.Base = (mirrored, edges_at(mirrored, [(20.031, -48.021, -15.8), (20.031, -11.521, -15.8)]))
fillet2.Radius = 2
doc.recompute()

fillet3 = body.newObject("PartDesign::Fillet", "Fillet002")
fillet3.Base = (fillet2, edges_at(fillet2, [(18.527, -29.771, 3), (102.871, -29.771, 3)]))
fillet3.Radius = 2

sketch6 = body.newObject("Sketcher::SketchObject", "Sketch005")
sketch6.AttachmentSupport = (doc.getObject("XY_Plane"), [""])
sketch6.MapMode = "FlatFace"
add_polygon(sketch6, [(70.6, -53), (70.6, -56), (50.6, -56), (50.6, -53)])
sketch6.addConstraint([
    Sketcher.Constraint("Vertical", 0),
    Sketcher.Constraint("Horizontal", 1),
    Sketcher.Constraint("Vertical", 2),
    Sketcher.Constraint("Horizontal", 3),
    Sketcher.Constraint("DistanceX", 1, 2, 1, 1, 20.0),
    Sketcher.Constraint("DistanceY", 0, 2, 0, 1, 3.0),
    Sketcher.Constraint("DistanceX", -1, 1, 0, 2, 70.589824),
    Sketcher.Constraint("DistanceY", 0, 2, -1, 1, 56.021224),
])
pad3 = body.newObject("PartDesign::Pad", "Pad002")
pad3.Profile = sketch6
pad3.Length = 8
pad3.Reversed = True

sketch7 = body.newObject("Sketcher::SketchObject", "Sketch006")
sketch7.AttachmentSupport = (doc.getObject("XZ_Plane"), [""])
sketch7.MapMode = "FlatFace"
sketch7.AttachmentOffset = App.Placement(V(0, 0, 53.021224), App.Rotation())
sketch7.addGeometry([
    Part.Circle(V(66.6, -3.5, 0), V(0, 0, 1), 1.5),
    Part.Circle(V(54.6, -3.5, 0), V(0, 0, 1), 1.5),
], False)
sketch7.addConstraint([
    Sketcher.Constraint("Equal", 0, 1),
    Sketcher.Constraint("Horizontal", 0, 3, 1, 3),
    Sketcher.Constraint("Diameter", 0, 3.0),
    Sketcher.Constraint("DistanceX", 1, 3, 0, 3, 12.0),
    Sketcher.Constraint("DistanceY", 0, 3, -1, 1, 3.5),
    Sketcher.Constraint("DistanceX", -1, 1, 0, 3, 66.589824),
])
pocket4 = body.newObject("PartDesign::Pocket", "Pocket003")
pocket4.Profile = sketch7
pocket4.Length = 3
pocket4.Reversed = True

sketch8 = body.newObject("Sketcher::SketchObject", "Sketch007")
sketch8.AttachmentSupport = (doc.getObject("XZ_Plane"), [""])
sketch8.MapMode = "FlatFace"
sketch8.AttachmentOffset = App.Placement(V(0, 0, 53.021224), App.Rotation())
sketch8.addGeometry([
    Part.Circle(V(66.6, -3.5, 0), V(0, 0, 1), 2.2),
    Part.Circle(V(54.6, -3.5, 0), V(0, 0, 1), 2.2),
], False)
sketch8.addConstraint([
    Sketcher.Constraint("Equal", 0, 1),
    Sketcher.Constraint("Horizontal", 0, 3, 1, 3),
    Sketcher.Constraint("Diameter", 0, 4.5),
    Sketcher.Constraint("DistanceX", 1, 3, 0, 3, 12.0),
    Sketcher.Constraint("DistanceY", 0, 3, -1, 1, 3.5),
    Sketcher.Constraint("DistanceX", -1, 1, 0, 3, 66.589824),
])
pocket5 = body.newObject("PartDesign::Pocket", "Pocket004")
pocket5.Profile = sketch8
pocket5.Length = 1
pocket5.Reversed = True
doc.recompute()

fillet4 = body.newObject("PartDesign::Fillet", "Fillet003")
fillet4.Base = (pocket5, edges_at(pocket5, [(70.59, -54.521, -8), (50.59, -54.521, -8)]))
fillet4.Radius = 2

doc.recompute()
